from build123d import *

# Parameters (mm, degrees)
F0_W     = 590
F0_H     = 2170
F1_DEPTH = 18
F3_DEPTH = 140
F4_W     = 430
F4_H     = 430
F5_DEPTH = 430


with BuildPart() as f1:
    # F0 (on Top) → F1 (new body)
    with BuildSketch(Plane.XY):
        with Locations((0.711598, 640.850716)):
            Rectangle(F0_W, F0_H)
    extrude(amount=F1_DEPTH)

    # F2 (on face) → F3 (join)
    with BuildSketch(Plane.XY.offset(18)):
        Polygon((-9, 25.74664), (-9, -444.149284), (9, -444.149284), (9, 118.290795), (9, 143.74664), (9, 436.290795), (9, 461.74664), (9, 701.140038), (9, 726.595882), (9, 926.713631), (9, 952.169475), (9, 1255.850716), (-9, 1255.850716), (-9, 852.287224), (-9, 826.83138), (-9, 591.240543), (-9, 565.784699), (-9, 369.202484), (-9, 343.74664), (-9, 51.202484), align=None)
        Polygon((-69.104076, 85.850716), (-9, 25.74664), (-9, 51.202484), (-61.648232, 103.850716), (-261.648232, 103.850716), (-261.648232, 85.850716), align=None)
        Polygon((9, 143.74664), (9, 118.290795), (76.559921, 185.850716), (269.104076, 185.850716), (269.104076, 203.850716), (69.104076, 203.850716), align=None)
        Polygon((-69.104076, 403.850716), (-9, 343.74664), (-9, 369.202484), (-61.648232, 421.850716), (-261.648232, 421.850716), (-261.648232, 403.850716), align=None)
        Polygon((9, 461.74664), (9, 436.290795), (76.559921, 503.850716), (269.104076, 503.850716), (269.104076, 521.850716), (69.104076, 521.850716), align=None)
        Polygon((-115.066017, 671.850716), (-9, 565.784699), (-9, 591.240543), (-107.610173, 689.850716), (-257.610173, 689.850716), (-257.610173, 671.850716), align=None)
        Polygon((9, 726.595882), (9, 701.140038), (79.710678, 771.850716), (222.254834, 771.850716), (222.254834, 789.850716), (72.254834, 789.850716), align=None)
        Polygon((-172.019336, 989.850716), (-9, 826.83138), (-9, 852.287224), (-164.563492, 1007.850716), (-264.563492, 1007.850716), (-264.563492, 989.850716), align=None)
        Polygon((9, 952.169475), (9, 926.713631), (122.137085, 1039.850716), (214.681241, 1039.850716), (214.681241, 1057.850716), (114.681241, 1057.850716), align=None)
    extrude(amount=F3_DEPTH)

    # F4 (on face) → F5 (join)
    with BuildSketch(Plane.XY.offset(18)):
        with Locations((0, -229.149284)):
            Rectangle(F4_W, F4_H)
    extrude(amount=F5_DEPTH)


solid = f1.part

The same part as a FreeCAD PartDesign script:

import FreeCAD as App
import Part
import Sketcher

V = App.Vector
Q = App.Units.Quantity

doc = App.newDocument("Part")
body = doc.addObject("PartDesign::Body", "Body")

# Sketch on XY plane
sketch1 = doc.addObject("Sketcher::SketchObject", "Sketch")
body.addObject(sketch1)
sketch1.AttachmentSupport = (doc.XY_Plane, [""])
sketch1.MapMode = "FlatFace"
sketch1.addGeometry([
    Part.LineSegment(V(-294.288402, 1725.850716, 0), V(-294.288402, -444.149284, 0)),
    Part.LineSegment(V(-294.288402, -444.149284, 0), V(295.711598, -444.149284, 0)),
    Part.LineSegment(V(295.711598, -444.149284, 0), V(295.711598, 1725.850716, 0)),
    Part.LineSegment(V(295.711598, 1725.850716, 0), V(-294.288402, 1725.850716, 0)),
], False)
sketch1.addConstraint([
    Sketcher.Constraint("Coincident", 0, 2, 1, 1),
    Sketcher.Constraint("Coincident", 1, 2, 2, 1),
    Sketcher.Constraint("Coincident", 2, 2, 3, 1),
    Sketcher.Constraint("Coincident", 3, 2, 0, 1),
    Sketcher.Constraint("Vertical", 0),
    Sketcher.Constraint("Horizontal", 1),
    Sketcher.Constraint("Vertical", 2),
    Sketcher.Constraint("Horizontal", 3),
    Sketcher.Constraint("DistanceX", 1, 1, 1, 2, 590.0),
    Sketcher.Constraint("DistanceY", 0, 2, 0, 1, 2170.0),
    Sketcher.Constraint("DistanceX", 0, 2, -1, 1, 294.288402),
    Sketcher.Constraint("DistanceY", 0, 2, -1, 1, 444.149284),
])
pad1 = doc.addObject("PartDesign::Pad", "Pad")
body.addObject(pad1)
pad1.Profile = sketch1
pad1.Length = 18

# Sketch on XY plane
sketch2 = doc.addObject("Sketcher::SketchObject", "Sketch001")
body.addObject(sketch2)
sketch2.AttachmentSupport = (doc.XY_Plane, [""])
sketch2.MapMode = "FlatFace"
sketch2.AttachmentOffset = App.Placement(V(0, 0, 18), App.Rotation())
sketch2.addGeometry([
    Part.LineSegment(V(-9, -444.149284, 0), V(9, -444.149284, 0)),  # 0
    Part.LineSegment(V(9, -444.149284, 0), V(9, 118.290795, 0)),  # 1
    Part.LineSegment(V(9, 118.290795, 0), V(76.559921, 185.850716, 0)),  # 2
    Part.LineSegment(V(76.559921, 185.850716, 0), V(269.104076, 185.850716, 0)),  # 3
    Part.LineSegment(V(269.104076, 185.850716, 0), V(269.104076, 203.850716, 0)),  # 4
    Part.LineSegment(V(269.104076, 203.850716, 0), V(69.104076, 203.850716, 0)),  # 5
    Part.LineSegment(V(69.104076, 203.850716, 0), V(9, 143.74664, 0)),  # 6
    Part.LineSegment(V(9, 143.74664, 0), V(9, 436.290795, 0)),  # 7
    Part.LineSegment(V(9, 436.290795, 0), V(76.559921, 503.850716, 0)),  # 8
    Part.LineSegment(V(76.559921, 503.850716, 0), V(269.104076, 503.850716, 0)),  # 9
    Part.LineSegment(V(269.104076, 503.850716, 0), V(269.104076, 521.850716, 0)),  # 10
    Part.LineSegment(V(269.104076, 521.850716, 0), V(69.104076, 521.850716, 0)),  # 11
    Part.LineSegment(V(69.104076, 521.850716, 0), V(9, 461.74664, 0)),  # 12
    Part.LineSegment(V(9, 461.74664, 0), V(9, 701.140038, 0)),  # 13
    Part.LineSegment(V(9, 701.140038, 0), V(79.710678, 771.850716, 0)),  # 14
    Part.LineSegment(V(79.710678, 771.850716, 0), V(222.254834, 771.850716, 0)),  # 15
    Part.LineSegment(V(222.254834, 771.850716, 0), V(222.254834, 789.850716, 0)),  # 16
    Part.LineSegment(V(222.254834, 789.850716, 0), V(72.254834, 789.850716, 0)),  # 17
    Part.LineSegment(V(72.254834, 789.850716, 0), V(9, 726.595882, 0)),  # 18
    Part.LineSegment(V(9, 726.595882, 0), V(9, 926.713631, 0)),  # 19
    Part.LineSegment(V(9, 926.713631, 0), V(122.137085, 1039.850716, 0)),  # 20
    Part.LineSegment(V(122.137085, 1039.850716, 0), V(214.681241, 1039.850716, 0)),  # 21
    Part.LineSegment(V(214.681241, 1039.850716, 0), V(214.681241, 1057.850716, 0)),  # 22
    Part.LineSegment(V(214.681241, 1057.850716, 0), V(114.681241, 1057.850716, 0)),  # 23
    Part.LineSegment(V(114.681241, 1057.850716, 0), V(9, 952.169475, 0)),  # 24
    Part.LineSegment(V(9, 952.169475, 0), V(9, 1255.850716, 0)),  # 25
    Part.LineSegment(V(9, 1255.850716, 0), V(-9, 1255.850716, 0)),  # 26
    Part.LineSegment(V(-9, 1255.850716, 0), V(-9, 852.287224, 0)),  # 27
    Part.LineSegment(V(-9, 852.287224, 0), V(-164.563492, 1007.850716, 0)),  # 28
    Part.LineSegment(V(-164.563492, 1007.850716, 0), V(-264.563492, 1007.850716, 0)),  # 29
    Part.LineSegment(V(-264.563492, 1007.850716, 0), V(-264.563492, 989.850716, 0)),  # 30
    Part.LineSegment(V(-264.563492, 989.850716, 0), V(-172.019336, 989.850716, 0)),  # 31
    Part.LineSegment(V(-172.019336, 989.850716, 0), V(-9, 826.83138, 0)),  # 32
    Part.LineSegment(V(-9, 826.83138, 0), V(-9, 591.240543, 0)),  # 33
    Part.LineSegment(V(-9, 591.240543, 0), V(-107.610173, 689.850716, 0)),  # 34
    Part.LineSegment(V(-107.610173, 689.850716, 0), V(-257.610173, 689.850716, 0)),  # 35
    Part.LineSegment(V(-257.610173, 689.850716, 0), V(-257.610173, 671.850716, 0)),  # 36
    Part.LineSegment(V(-257.610173, 671.850716, 0), V(-115.066017, 671.850716, 0)),  # 37
    Part.LineSegment(V(-115.066017, 671.850716, 0), V(-9, 565.784699, 0)),  # 38
    Part.LineSegment(V(-9, 565.784699, 0), V(-9, 369.202484, 0)),  # 39
    Part.LineSegment(V(-9, 369.202484, 0), V(-61.648232, 421.850716, 0)),  # 40
    Part.LineSegment(V(-61.648232, 421.850716, 0), V(-261.648232, 421.850716, 0)),  # 41
    Part.LineSegment(V(-261.648232, 421.850716, 0), V(-261.648232, 403.850716, 0)),  # 42
    Part.LineSegment(V(-261.648232, 403.850716, 0), V(-69.104076, 403.850716, 0)),  # 43
    Part.LineSegment(V(-69.104076, 403.850716, 0), V(-9, 343.74664, 0)),  # 44
    Part.LineSegment(V(-9, 343.74664, 0), V(-9, 51.202484, 0)),  # 45
    Part.LineSegment(V(-9, 51.202484, 0), V(-61.648232, 103.850716, 0)),  # 46
    Part.LineSegment(V(-61.648232, 103.850716, 0), V(-261.648232, 103.850716, 0)),  # 47
    Part.LineSegment(V(-261.648232, 103.850716, 0), V(-261.648232, 85.850716, 0)),  # 48
    Part.LineSegment(V(-261.648232, 85.850716, 0), V(-69.104076, 85.850716, 0)),  # 49
    Part.LineSegment(V(-69.104076, 85.850716, 0), V(-9, 25.74664, 0)),  # 50
    Part.LineSegment(V(-9, 25.74664, 0), V(-9, -444.149284, 0)),  # 51
], False)
sketch2.addConstraint([
    Sketcher.Constraint("Coincident", 0, 2, 1, 1),
    Sketcher.Constraint("Coincident", 1, 2, 2, 1),
    Sketcher.Constraint("Coincident", 2, 2, 3, 1),
    Sketcher.Constraint("Coincident", 3, 2, 4, 1),
    Sketcher.Constraint("Coincident", 4, 2, 5, 1),
    Sketcher.Constraint("Coincident", 5, 2, 6, 1),
    Sketcher.Constraint("Coincident", 6, 2, 7, 1),
    Sketcher.Constraint("Coincident", 7, 2, 8, 1),
    Sketcher.Constraint("Coincident", 8, 2, 9, 1),
    Sketcher.Constraint("Coincident", 9, 2, 10, 1),
    Sketcher.Constraint("Coincident", 10, 2, 11, 1),
    Sketcher.Constraint("Coincident", 11, 2, 12, 1),
    Sketcher.Constraint("Coincident", 12, 2, 13, 1),
    Sketcher.Constraint("Coincident", 13, 2, 14, 1),
    Sketcher.Constraint("Coincident", 14, 2, 15, 1),
    Sketcher.Constraint("Coincident", 15, 2, 16, 1),
    Sketcher.Constraint("Coincident", 16, 2, 17, 1),
    Sketcher.Constraint("Coincident", 17, 2, 18, 1),
    Sketcher.Constraint("Coincident", 18, 2, 19, 1),
    Sketcher.Constraint("Coincident", 19, 2, 20, 1),
    Sketcher.Constraint("Coincident", 20, 2, 21, 1),
    Sketcher.Constraint("Coincident", 21, 2, 22, 1),
    Sketcher.Constraint("Coincident", 22, 2, 23, 1),
    Sketcher.Constraint("Coincident", 23, 2, 24, 1),
    Sketcher.Constraint("Coincident", 24, 2, 25, 1),
    Sketcher.Constraint("Coincident", 25, 2, 26, 1),
    Sketcher.Constraint("Coincident", 26, 2, 27, 1),
    Sketcher.Constraint("Coincident", 27, 2, 28, 1),
    Sketcher.Constraint("Coincident", 28, 2, 29, 1),
    Sketcher.Constraint("Coincident", 29, 2, 30, 1),
    Sketcher.Constraint("Coincident", 30, 2, 31, 1),
    Sketcher.Constraint("Coincident", 31, 2, 32, 1),
    Sketcher.Constraint("Coincident", 32, 2, 33, 1),
    Sketcher.Constraint("Coincident", 33, 2, 34, 1),
    Sketcher.Constraint("Coincident", 34, 2, 35, 1),
    Sketcher.Constraint("Coincident", 35, 2, 36, 1),
    Sketcher.Constraint("Coincident", 36, 2, 37, 1),
    Sketcher.Constraint("Coincident", 37, 2, 38, 1),
    Sketcher.Constraint("Coincident", 38, 2, 39, 1),
    Sketcher.Constraint("Coincident", 39, 2, 40, 1),
    Sketcher.Constraint("Coincident", 40, 2, 41, 1),
    Sketcher.Constraint("Coincident", 41, 2, 42, 1),
    Sketcher.Constraint("Coincident", 42, 2, 43, 1),
    Sketcher.Constraint("Coincident", 43, 2, 44, 1),
    Sketcher.Constraint("Coincident", 44, 2, 45, 1),
    Sketcher.Constraint("Coincident", 45, 2, 46, 1),
    Sketcher.Constraint("Coincident", 46, 2, 47, 1),
    Sketcher.Constraint("Coincident", 47, 2, 48, 1),
    Sketcher.Constraint("Coincident", 48, 2, 49, 1),
    Sketcher.Constraint("Coincident", 49, 2, 50, 1),
    Sketcher.Constraint("Coincident", 50, 2, 51, 1),
    Sketcher.Constraint("Coincident", 51, 2, 0, 1),
    Sketcher.Constraint("Horizontal", 0),
    Sketcher.Constraint("Vertical", 1),
    Sketcher.Constraint("Horizontal", 3),
    Sketcher.Constraint("Vertical", 4),
    Sketcher.Constraint("Horizontal", 5),
    Sketcher.Constraint("Vertical", 7),
    Sketcher.Constraint("Horizontal", 9),
    Sketcher.Constraint("Vertical", 10),
    Sketcher.Constraint("Horizontal", 11),
    Sketcher.Constraint("Vertical", 13),
    Sketcher.Constraint("Horizontal", 15),
    Sketcher.Constraint("Vertical", 16),
    Sketcher.Constraint("Horizontal", 17),
    Sketcher.Constraint("Vertical", 19),
    Sketcher.Constraint("Horizontal", 21),
    Sketcher.Constraint("Vertical", 22),
    Sketcher.Constraint("Horizontal", 23),
    Sketcher.Constraint("Vertical", 25),
    Sketcher.Constraint("Horizontal", 26),
    Sketcher.Constraint("Vertical", 27),
    Sketcher.Constraint("Horizontal", 29),
    Sketcher.Constraint("Vertical", 30),
    Sketcher.Constraint("Horizontal", 31),
    Sketcher.Constraint("Vertical", 33),
    Sketcher.Constraint("Horizontal", 35),
    Sketcher.Constraint("Vertical", 36),
    Sketcher.Constraint("Horizontal", 37),
    Sketcher.Constraint("Vertical", 39),
    Sketcher.Constraint("Horizontal", 41),
    Sketcher.Constraint("Vertical", 42),
    Sketcher.Constraint("Horizontal", 43),
    Sketcher.Constraint("Vertical", 45),
    Sketcher.Constraint("Horizontal", 47),
    Sketcher.Constraint("Vertical", 48),
    Sketcher.Constraint("Horizontal", 49),
    Sketcher.Constraint("Vertical", 51),
    Sketcher.Constraint("Parallel", 2, 6),
    Sketcher.Constraint("Parallel", 6, 8),
    Sketcher.Constraint("Parallel", 8, 12),
    Sketcher.Constraint("Parallel", 12, 14),
    Sketcher.Constraint("Parallel", 14, 18),
    Sketcher.Constraint("Parallel", 18, 20),
    Sketcher.Constraint("Parallel", 20, 24),
    Sketcher.Constraint("Perpendicular", 24, 28),
    Sketcher.Constraint("Parallel", 28, 32),
    Sketcher.Constraint("Parallel", 32, 34),
    Sketcher.Constraint("Parallel", 34, 38),
    Sketcher.Constraint("Parallel", 38, 40),
    Sketcher.Constraint("Parallel", 40, 44),
    Sketcher.Constraint("Parallel", 44, 46),
    Sketcher.Constraint("Parallel", 46, 50),
    Sketcher.Constraint("Vertical", 1, 2, 6, 2),
    Sketcher.Constraint("Vertical", 2, 2, 8, 2),
    Sketcher.Constraint("Vertical", 4, 2, 9, 2),
    Sketcher.Constraint("Vertical", 5, 2, 11, 2),
    Sketcher.Constraint("Vertical", 7, 2, 12, 2),
    Sketcher.Constraint("Vertical", 13, 2, 18, 2),
    Sketcher.Constraint("Vertical", 19, 2, 24, 2),
    Sketcher.Constraint("Vertical", 27, 2, 32, 2),
    Sketcher.Constraint("Vertical", 33, 2, 38, 2),
    Sketcher.Constraint("Vertical", 39, 2, 44, 2),
    Sketcher.Constraint("Vertical", 40, 2, 46, 2),
    Sketcher.Constraint("Vertical", 42, 2, 47, 2),
    Sketcher.Constraint("Vertical", 43, 2, 49, 2),
    Sketcher.Constraint("Vertical", 45, 2, 50, 2),
    Sketcher.Constraint("Equal", 23, 29),
    Sketcher.Constraint("Equal", 21, 31),
    Sketcher.Constraint("Equal", 17, 35),
    Sketcher.Constraint("Equal", 15, 37),
    Sketcher.Constraint("Equal", 11, 41),
    Sketcher.Constraint("Equal", 9, 43),
    Sketcher.Constraint("Equal", 26, 4),
    Sketcher.Constraint("Equal", 4, 10),
    Sketcher.Constraint("Equal", 10, 16),
    Sketcher.Constraint("Equal", 16, 22),
    Sketcher.Constraint("Equal", 22, 30),
    Sketcher.Constraint("Equal", 30, 36),
    Sketcher.Constraint("Equal", 36, 42),
    Sketcher.Constraint("Equal", 7, 45),
    Sketcher.Constraint("Equal", 42, 48),
    Sketcher.Constraint("Equal", 12, 44),
    Sketcher.Constraint("DistanceX", 0, 1, 0, 2, 18.0),
    Sketcher.Constraint("DistanceX", 5, 2, 5, 1, 200.0),
    Sketcher.Constraint("DistanceX", 17, 2, 17, 1, 150.0),
    Sketcher.Constraint("DistanceX", 23, 2, 23, 1, 100.0),
    Sketcher.Constraint("Angle", 2, Q("45 deg")),
    Sketcher.Constraint("Distance", 6, 84.999999),
    Sketcher.Constraint("Distance", 14, 100.0),
    Sketcher.Constraint("Distance", 20, 160.0),
    Sketcher.Constraint("Distance", 28, 220.0),
    Sketcher.Constraint("Distance", 38, 150.0),
    Sketcher.Constraint("DistanceX", -1, 1, 0, 2, 9.0),
    Sketcher.Constraint("DistanceY", 0, 2, 2, 2, 630.0),
    Sketcher.Constraint("DistanceY", 1, 2, 7, 2, 318.0),
    Sketcher.Constraint("DistanceY", 11, 2, 14, 2, 250.0),
    Sketcher.Constraint("DistanceY", 17, 2, 20, 2, 250.0),
    Sketcher.Constraint("DistanceY", 23, 2, 25, 2, 198.0),
    Sketcher.Constraint("DistanceY", 28, 2, 23, 2, 50.0),
    Sketcher.Constraint("DistanceY", 40, 2, 8, 2, 82.0),
    Sketcher.Constraint("DistanceY", 41, 2, 36, 2, 250.0),
    Sketcher.Constraint("DistanceY", 1, 1, 1, 2, 562.440079),
    Sketcher.Constraint("DistanceY", 19, 1, 19, 2, 200.117749),
    Sketcher.Constraint("DistanceY", 25, 1, 25, 2, 303.681241),
    Sketcher.Constraint("DistanceY", -1, 1, 38, 2, 565.784699),
])
pad2 = doc.addObject("PartDesign::Pad", "Pad001")
body.addObject(pad2)
pad2.Profile = sketch2
pad2.Length = 140

# Sketch on XY plane
sketch3 = doc.addObject("Sketcher::SketchObject", "Sketch002")
body.addObject(sketch3)
sketch3.AttachmentSupport = (doc.XY_Plane, [""])
sketch3.MapMode = "FlatFace"
sketch3.AttachmentOffset = App.Placement(V(0, 0, 18), App.Rotation())
sketch3.addGeometry([
    Part.LineSegment(V(-215, -14.149284, 0), V(-215, -444.149284, 0)),
    Part.LineSegment(V(-215, -444.149284, 0), V(215, -444.149284, 0)),
    Part.LineSegment(V(215, -444.149284, 0), V(215, -14.149284, 0)),
    Part.LineSegment(V(215, -14.149284, 0), V(-215, -14.149284, 0)),
], False)
sketch3.addConstraint([
    Sketcher.Constraint("Coincident", 0, 2, 1, 1),
    Sketcher.Constraint("Coincident", 1, 2, 2, 1),
    Sketcher.Constraint("Coincident", 2, 2, 3, 1),
    Sketcher.Constraint("Coincident", 3, 2, 0, 1),
    Sketcher.Constraint("Vertical", 0),
    Sketcher.Constraint("Horizontal", 1),
    Sketcher.Constraint("Vertical", 2),
    Sketcher.Constraint("Horizontal", 3),
    Sketcher.Constraint("Equal", 3, 0),
    Sketcher.Constraint("DistanceX", 1, 1, 1, 2, 430.0),
    Sketcher.Constraint("DistanceX", 0, 2, -1, 1, 215.0),
    Sketcher.Constraint("DistanceY", 0, 2, -1, 1, 444.149284),
])
pad3 = doc.addObject("PartDesign::Pad", "Pad002")
body.addObject(pad3)
pad3.Profile = sketch3
pad3.Length = 430

doc.recompute()
